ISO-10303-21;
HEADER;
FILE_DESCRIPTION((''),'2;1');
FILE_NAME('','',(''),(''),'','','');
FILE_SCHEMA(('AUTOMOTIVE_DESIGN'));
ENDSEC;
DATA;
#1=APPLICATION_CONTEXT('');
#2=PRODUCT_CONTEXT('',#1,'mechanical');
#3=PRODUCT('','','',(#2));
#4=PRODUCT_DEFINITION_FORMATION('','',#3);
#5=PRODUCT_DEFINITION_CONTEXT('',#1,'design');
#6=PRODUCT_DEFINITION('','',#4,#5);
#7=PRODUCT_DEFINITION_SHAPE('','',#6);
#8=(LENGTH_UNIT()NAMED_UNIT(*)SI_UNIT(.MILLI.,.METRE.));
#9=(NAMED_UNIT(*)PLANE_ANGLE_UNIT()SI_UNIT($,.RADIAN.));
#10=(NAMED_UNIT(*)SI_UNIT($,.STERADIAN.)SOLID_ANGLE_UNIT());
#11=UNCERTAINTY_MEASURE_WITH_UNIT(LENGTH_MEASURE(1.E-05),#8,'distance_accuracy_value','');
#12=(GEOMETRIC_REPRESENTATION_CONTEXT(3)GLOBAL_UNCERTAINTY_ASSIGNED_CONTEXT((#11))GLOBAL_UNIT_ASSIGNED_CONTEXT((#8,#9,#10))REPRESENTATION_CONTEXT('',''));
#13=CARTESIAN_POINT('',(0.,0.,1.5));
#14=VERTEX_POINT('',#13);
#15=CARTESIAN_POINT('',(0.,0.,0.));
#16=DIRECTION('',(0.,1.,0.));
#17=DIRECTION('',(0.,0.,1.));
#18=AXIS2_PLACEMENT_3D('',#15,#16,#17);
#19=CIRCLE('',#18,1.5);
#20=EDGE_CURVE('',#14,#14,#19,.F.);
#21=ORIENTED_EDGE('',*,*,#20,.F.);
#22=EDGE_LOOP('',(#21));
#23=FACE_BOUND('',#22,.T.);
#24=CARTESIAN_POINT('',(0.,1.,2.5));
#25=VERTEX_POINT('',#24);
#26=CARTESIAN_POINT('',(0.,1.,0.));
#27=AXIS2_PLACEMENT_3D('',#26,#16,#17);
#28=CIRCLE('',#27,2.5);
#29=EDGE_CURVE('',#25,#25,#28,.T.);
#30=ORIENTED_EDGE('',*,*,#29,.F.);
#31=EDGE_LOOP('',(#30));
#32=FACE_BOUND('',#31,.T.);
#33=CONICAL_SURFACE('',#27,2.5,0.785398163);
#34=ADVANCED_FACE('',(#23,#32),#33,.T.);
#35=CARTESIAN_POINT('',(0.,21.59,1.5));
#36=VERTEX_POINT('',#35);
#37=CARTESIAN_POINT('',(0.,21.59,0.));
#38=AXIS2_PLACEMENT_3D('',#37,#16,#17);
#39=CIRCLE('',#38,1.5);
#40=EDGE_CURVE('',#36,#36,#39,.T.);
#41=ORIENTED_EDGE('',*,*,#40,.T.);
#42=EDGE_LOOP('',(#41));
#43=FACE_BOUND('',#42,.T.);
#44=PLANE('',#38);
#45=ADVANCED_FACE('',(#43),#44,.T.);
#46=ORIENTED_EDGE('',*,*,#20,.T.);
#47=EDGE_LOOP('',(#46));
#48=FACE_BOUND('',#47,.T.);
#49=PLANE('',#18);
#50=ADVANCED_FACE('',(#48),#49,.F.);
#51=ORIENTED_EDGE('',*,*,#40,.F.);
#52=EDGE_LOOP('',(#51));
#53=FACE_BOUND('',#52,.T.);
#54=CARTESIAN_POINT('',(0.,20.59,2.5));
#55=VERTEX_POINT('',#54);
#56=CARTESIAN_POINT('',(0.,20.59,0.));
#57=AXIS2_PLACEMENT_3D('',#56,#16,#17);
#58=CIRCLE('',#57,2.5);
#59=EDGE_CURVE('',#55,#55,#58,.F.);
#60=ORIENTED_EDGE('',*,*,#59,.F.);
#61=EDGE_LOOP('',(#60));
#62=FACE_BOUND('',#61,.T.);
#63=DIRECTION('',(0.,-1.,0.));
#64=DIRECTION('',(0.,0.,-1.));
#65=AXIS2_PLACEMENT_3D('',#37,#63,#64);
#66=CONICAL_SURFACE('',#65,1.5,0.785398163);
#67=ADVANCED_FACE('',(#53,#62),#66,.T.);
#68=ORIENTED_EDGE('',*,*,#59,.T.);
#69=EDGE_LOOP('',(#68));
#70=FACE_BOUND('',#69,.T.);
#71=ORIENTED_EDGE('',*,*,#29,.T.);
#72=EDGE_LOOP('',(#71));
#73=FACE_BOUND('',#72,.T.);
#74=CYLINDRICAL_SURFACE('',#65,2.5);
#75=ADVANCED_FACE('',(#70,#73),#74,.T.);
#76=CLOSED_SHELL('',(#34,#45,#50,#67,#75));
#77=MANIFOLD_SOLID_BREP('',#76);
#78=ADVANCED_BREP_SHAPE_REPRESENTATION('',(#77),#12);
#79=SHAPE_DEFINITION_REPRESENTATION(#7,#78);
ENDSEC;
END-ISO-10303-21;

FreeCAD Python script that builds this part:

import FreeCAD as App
import Part
import Sketcher
Q = App.Units.Quantity


def edges_at(feature, points):
    """Names of the edges that pass closest to the given points."""
    edges = feature.Shape.Edges
    near = lambda p: min(range(len(edges)), key=lambda i: edges[i].distToShape(Part.Vertex(*p))[0])
    return sorted({f"Edge{near(p) + 1}" for p in points})

doc = App.newDocument("Part")
body = doc.addObject("PartDesign::Body", "Body")

# Sketch on XZ plane
sketch1 = body.newObject("Sketcher::SketchObject", "Sketch")
sketch1.AttachmentSupport = (doc.getObject("XZ_Plane"), [""])
sketch1.MapMode = "FlatFace"
sketch1.addGeometry(Part.Circle(App.Vector(0, 0, 0), App.Vector(0, 0, 1), 2.5), False)
sketch1.addConstraint([
    Sketcher.Constraint("Coincident", 0, 3, -1, 1),
    Sketcher.Constraint("Diameter", 0, Q("5 mm")),
])
pad1 = body.newObject("PartDesign::Pad", "Pad")
pad1.Profile = sketch1
pad1.Length = 21.59
pad1.Reversed = True
doc.recompute()

chamfer = body.newObject("PartDesign::Chamfer", "Chamfer")
chamfer.Base = (pad1, edges_at(pad1, [(0, 0, -2.5), (0, 21.59, -2.5)]))
chamfer.Size = 1

doc.recompute()
